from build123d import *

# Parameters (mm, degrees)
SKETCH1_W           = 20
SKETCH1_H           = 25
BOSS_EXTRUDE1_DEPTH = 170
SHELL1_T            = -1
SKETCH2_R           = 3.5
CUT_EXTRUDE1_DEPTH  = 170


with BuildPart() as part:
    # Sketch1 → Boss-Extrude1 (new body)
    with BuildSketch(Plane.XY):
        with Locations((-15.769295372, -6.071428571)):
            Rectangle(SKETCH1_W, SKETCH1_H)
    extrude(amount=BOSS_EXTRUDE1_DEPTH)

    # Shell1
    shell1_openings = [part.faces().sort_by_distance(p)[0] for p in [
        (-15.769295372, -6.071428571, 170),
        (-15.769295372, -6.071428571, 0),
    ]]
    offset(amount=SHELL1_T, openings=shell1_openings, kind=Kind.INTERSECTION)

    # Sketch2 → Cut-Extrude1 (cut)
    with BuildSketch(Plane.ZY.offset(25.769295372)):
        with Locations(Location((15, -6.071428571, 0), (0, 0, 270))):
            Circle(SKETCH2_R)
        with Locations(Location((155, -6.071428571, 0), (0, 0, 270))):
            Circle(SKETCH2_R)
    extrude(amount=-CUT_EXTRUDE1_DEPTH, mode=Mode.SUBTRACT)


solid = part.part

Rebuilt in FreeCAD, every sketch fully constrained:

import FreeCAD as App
import Part
import Sketcher
from FreeCAD import Vector
Q = App.Units.Quantity


def faces_at(feature, points):
    """Names of the faces that lie closest to the given points."""
    faces = feature.Shape.Faces
    near = lambda p: min(range(len(faces)), key=lambda i: faces[i].distToShape(Part.Vertex(*p))[0])
    return sorted({f"Face{near(p) + 1}" for p in points})

doc = App.newDocument("Part")
params = doc.addObject("Spreadsheet::Sheet", "Params")
for row, (alias, value) in enumerate([
    ("sketch1_width", "20 mm"),
    ("sketch1_height", "25 mm"),
    ("pad1_length", "170 mm"),
    ("thickness_wall", "1 mm"),
    ("sketch2_diameter", "7 mm"),
    ("pocket1_length", "170 mm"),
], start=1):
    params.set(f"A{row}", alias)
    params.set(f"B{row}", "=" + value)
    params.setAlias(f"B{row}", alias)

body = doc.addObject("PartDesign::Body", "Body")

sketch1 = body.newObject("Sketcher::SketchObject", "Sketch")
sketch1.AttachmentSupport = (doc.getObject("XY_Plane"), [""])
sketch1.MapMode = "FlatFace"
sketch1.addGeometry([
    Part.LineSegment(Vector(-25.769295, 6.428571, 0), Vector(-25.769295, -18.571429, 0)),
    Part.LineSegment(Vector(-25.769295, -18.571429, 0), Vector(-5.769295, -18.571429, 0)),
    Part.LineSegment(Vector(-5.769295, -18.571429, 0), Vector(-5.769295, 6.428571, 0)),
    Part.LineSegment(Vector(-5.769295, 6.428571, 0), Vector(-25.769295, 6.428571, 0)),
], False)
sketch1.addConstraint([
    Sketcher.Constraint("Coincident", 0, 2, 1, 1),
    Sketcher.Constraint("Coincident", 1, 2, 2, 1),
    Sketcher.Constraint("Coincident", 2, 2, 3, 1),
    Sketcher.Constraint("Coincident", 3, 2, 0, 1),
    Sketcher.Constraint("Vertical", 0),
    Sketcher.Constraint("Horizontal", 1),
    Sketcher.Constraint("Vertical", 2),
    Sketcher.Constraint("Horizontal", 3),
    Sketcher.Constraint("DistanceX", 1, 1, 1, 2, Q("20 mm")),
    Sketcher.Constraint("DistanceY", 0, 2, 0, 1, Q("25 mm")),
    Sketcher.Constraint("DistanceY", 0, 2, -1, 1, Q("18.571429 mm")),
    Sketcher.Constraint("DistanceX", 0, 2, -1, 1, Q("25.769295 mm")),
])
sketch1.setExpression("Constraints[8]", "Params.sketch1_width")
sketch1.setExpression("Constraints[9]", "Params.sketch1_height")
pad1 = body.newObject("PartDesign::Pad", "Pad")
pad1.Profile = sketch1
pad1.setExpression("Length", "Params.pad1_length")
doc.recompute()

thickness = body.newObject("PartDesign::Thickness", "Thickness")
thickness.Base = (pad1, faces_at(pad1, [(-15.769, -6.071, 170), (-15.769, -6.071, 0)]))
thickness.setExpression("Value", "Params.thickness_wall")
thickness.Reversed = True
thickness.Join = "Intersection"

sketch2 = body.newObject("Sketcher::SketchObject", "Sketch001")
sketch2.AttachmentSupport = (doc.getObject("YZ_Plane"), [""])
sketch2.MapMode = "FlatFace"
sketch2.AttachmentOffset = App.Placement(Vector(0, 0, -25.769295), App.Rotation())
sketch2.addGeometry([
    Part.Circle(Vector(-6.071429, 15, 0), Vector(0, 0, 1), 3.5),
    Part.Circle(Vector(-6.071429, 155, 0), Vector(0, 0, 1), 3.5),
], False)
sketch2.addConstraint([
    Sketcher.Constraint("Equal", 0, 1),
    Sketcher.Constraint("Vertical", 0, 3, 1, 3),
    Sketcher.Constraint("Diameter", 0, Q("7 mm")),
    Sketcher.Constraint("DistanceY", -1, 1, 0, 3, Q("15 mm")),
    Sketcher.Constraint("DistanceY", -1, 1, 1, 3, Q("155 mm")),
    Sketcher.Constraint("DistanceX", 0, 3, -1, 1, Q("6.071429 mm")),
])
sketch2.setExpression("Constraints[2]", "Params.sketch2_diameter")
pocket1 = body.newObject("PartDesign::Pocket", "Pocket")
pocket1.Profile = sketch2
pocket1.setExpression("Length", "Params.pocket1_length")
pocket1.Reversed = True

doc.recompute()
